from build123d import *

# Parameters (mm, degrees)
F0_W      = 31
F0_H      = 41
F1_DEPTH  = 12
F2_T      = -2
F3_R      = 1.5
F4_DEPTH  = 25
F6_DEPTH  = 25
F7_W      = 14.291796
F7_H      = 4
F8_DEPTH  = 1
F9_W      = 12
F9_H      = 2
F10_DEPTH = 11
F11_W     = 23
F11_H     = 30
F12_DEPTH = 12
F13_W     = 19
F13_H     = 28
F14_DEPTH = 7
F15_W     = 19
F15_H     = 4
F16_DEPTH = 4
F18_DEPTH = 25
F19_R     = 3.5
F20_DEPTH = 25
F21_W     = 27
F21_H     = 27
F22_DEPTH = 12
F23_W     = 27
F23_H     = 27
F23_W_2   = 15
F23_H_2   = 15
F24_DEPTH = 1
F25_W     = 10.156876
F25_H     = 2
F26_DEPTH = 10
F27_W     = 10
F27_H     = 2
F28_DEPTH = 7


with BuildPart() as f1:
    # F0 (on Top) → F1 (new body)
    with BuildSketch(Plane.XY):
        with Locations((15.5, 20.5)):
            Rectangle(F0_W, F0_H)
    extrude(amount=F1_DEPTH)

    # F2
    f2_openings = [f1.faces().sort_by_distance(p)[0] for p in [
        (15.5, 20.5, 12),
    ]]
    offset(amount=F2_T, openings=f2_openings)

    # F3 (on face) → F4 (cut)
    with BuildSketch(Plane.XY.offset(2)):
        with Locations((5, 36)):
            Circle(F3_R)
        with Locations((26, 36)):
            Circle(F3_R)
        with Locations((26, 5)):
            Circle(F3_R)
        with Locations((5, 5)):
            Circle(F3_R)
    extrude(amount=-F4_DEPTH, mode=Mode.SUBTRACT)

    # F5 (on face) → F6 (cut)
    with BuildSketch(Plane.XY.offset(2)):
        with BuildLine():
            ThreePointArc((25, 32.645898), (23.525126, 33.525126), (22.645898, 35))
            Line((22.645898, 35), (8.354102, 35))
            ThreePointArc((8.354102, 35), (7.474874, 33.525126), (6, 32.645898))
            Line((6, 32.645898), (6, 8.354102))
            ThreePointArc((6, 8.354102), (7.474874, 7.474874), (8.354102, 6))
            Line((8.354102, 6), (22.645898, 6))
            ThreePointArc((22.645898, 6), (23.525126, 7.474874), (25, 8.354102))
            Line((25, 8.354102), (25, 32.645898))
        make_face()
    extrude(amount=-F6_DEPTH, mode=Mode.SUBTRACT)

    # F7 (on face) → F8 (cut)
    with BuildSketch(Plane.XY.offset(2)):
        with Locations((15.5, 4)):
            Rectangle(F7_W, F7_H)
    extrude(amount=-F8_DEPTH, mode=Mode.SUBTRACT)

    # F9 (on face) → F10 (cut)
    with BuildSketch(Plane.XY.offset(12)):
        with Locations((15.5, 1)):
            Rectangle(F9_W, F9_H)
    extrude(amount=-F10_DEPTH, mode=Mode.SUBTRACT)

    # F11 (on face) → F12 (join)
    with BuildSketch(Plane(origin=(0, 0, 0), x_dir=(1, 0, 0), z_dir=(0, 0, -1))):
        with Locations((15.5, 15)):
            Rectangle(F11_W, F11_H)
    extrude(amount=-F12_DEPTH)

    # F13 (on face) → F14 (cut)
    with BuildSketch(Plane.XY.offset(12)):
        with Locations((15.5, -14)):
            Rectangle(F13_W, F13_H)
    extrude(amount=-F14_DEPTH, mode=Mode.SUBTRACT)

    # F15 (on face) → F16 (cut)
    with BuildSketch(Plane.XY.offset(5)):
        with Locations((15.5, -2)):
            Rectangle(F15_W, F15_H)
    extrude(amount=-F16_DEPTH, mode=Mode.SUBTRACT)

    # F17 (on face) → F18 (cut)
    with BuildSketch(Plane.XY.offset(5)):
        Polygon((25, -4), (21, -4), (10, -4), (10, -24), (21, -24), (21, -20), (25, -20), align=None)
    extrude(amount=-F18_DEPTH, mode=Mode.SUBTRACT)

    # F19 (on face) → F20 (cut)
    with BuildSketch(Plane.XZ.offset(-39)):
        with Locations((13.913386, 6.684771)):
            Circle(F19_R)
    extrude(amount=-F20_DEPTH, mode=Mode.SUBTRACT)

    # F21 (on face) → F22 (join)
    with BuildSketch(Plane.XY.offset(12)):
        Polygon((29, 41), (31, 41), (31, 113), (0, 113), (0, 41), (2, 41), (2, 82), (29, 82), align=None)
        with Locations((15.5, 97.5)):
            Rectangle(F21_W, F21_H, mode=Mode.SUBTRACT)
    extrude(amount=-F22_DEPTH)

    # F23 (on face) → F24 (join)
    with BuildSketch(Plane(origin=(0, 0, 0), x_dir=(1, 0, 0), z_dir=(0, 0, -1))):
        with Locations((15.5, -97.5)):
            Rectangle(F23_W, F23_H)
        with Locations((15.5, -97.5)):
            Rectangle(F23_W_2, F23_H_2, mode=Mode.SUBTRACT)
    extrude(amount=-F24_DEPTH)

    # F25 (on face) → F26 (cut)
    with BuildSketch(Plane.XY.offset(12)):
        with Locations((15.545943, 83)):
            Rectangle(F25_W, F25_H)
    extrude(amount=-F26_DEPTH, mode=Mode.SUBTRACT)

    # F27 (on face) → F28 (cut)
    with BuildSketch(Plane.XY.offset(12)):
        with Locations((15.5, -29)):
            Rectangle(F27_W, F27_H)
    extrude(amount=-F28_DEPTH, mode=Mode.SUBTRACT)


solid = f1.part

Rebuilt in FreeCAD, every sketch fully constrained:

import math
import FreeCAD as App
import Part
import Sketcher

V = App.Vector


def faces_at(feature, points):
    """Names of the faces that lie closest to the given points."""
    faces = feature.Shape.Faces
    near = lambda p: min(range(len(faces)), key=lambda i: faces[i].distToShape(Part.Vertex(*p))[0])
    return sorted({f"Face{near(p) + 1}" for p in points})


def add_polygon(sketch, points):
    """Adds a closed chain of lines whose ends are joined by coincident constraints."""
    first, n = sketch.GeometryCount, len(points)
    for a, b in zip(points, points[1:] + points[:1]):
        sketch.addGeometry(Part.LineSegment(App.Vector(*a, 0), App.Vector(*b, 0)), False)
    for i in range(n):
        sketch.addConstraint(Sketcher.Constraint("Coincident", first + i, 2, first + (i + 1) % n, 1))

doc = App.newDocument("Part")
body = doc.addObject("PartDesign::Body", "Body")

# Sketch on XY plane
sketch1 = body.newObject("Sketcher::SketchObject", "Sketch")
sketch1.AttachmentSupport = (doc.getObject("XY_Plane"), [""])
sketch1.MapMode = "FlatFace"
add_polygon(sketch1, [(0, 41), (0, 0), (31, 0), (31, 41)])  # lines 0-3
sketch1.addConstraint([
    Sketcher.Constraint("Vertical", 0),
    Sketcher.Constraint("Horizontal", 1),
    Sketcher.Constraint("Vertical", 2),
    Sketcher.Constraint("Horizontal", 3),
    Sketcher.Constraint("Coincident", 0, 2, -1, 1),
    Sketcher.Constraint("DistanceX", 1, 1, 1, 2, 31.0),
    Sketcher.Constraint("DistanceY", 0, 2, 0, 1, 41.0),
])
pad1 = body.newObject("PartDesign::Pad", "Pad")
pad1.Profile = sketch1
pad1.Length = 12
doc.recompute()

thickness = body.newObject("PartDesign::Thickness", "Thickness")
thickness.Base = (pad1, faces_at(pad1, [(15.5, 20.5, 12)]))
thickness.Value = 2
thickness.Reversed = True
thickness.Join = "Arc"

# Sketch on XY plane
sketch2 = body.newObject("Sketcher::SketchObject", "Sketch001")
sketch2.AttachmentSupport = (doc.getObject("XY_Plane"), [""])
sketch2.MapMode = "FlatFace"
sketch2.AttachmentOffset = App.Placement(V(0, 0, 2), App.Rotation())
sketch2.addGeometry([
    Part.Circle(V(5, 36, 0), V(0, 0, 1), 1.5),
    Part.Circle(V(26, 36, 0), V(0, 0, 1), 1.5),
    Part.Circle(V(26, 5, 0), V(0, 0, 1), 1.5),
    Part.Circle(V(5, 5, 0), V(0, 0, 1), 1.5),
], False)
sketch2.addConstraint([
    Sketcher.Constraint("Equal", 0, 1),
    Sketcher.Constraint("Equal", 1, 2),
    Sketcher.Constraint("Equal", 2, 3),
    Sketcher.Constraint("Horizontal", 0, 3, 1, 3),
    Sketcher.Constraint("Horizontal", 2, 3, 3, 3),
    Sketcher.Constraint("Vertical", 1, 3, 2, 3),
    Sketcher.Constraint("Vertical", 0, 3, 3, 3),
    Sketcher.Constraint("Diameter", 0, 3.0),
    Sketcher.Constraint("DistanceX", -1, 1, 0, 3, 5.0),
    Sketcher.Constraint("DistanceY", -1, 1, 0, 3, 36.0),
    Sketcher.Constraint("DistanceX", -1, 1, 1, 3, 26.0),
    Sketcher.Constraint("DistanceY", -1, 1, 2, 3, 5.0),
])
pocket1 = body.newObject("PartDesign::Pocket", "Pocket")
pocket1.Profile = sketch2
pocket1.Length = 25

# Sketch on XY plane
sketch3 = body.newObject("Sketcher::SketchObject", "Sketch002")
sketch3.AttachmentSupport = (doc.getObject("XY_Plane"), [""])
sketch3.MapMode = "FlatFace"
sketch3.AttachmentOffset = App.Placement(V(0, 0, 2), App.Rotation())
sketch3.addGeometry([
    Part.ArcOfCircle(Part.Circle(V(25.999998, 35.999998, 0), V(0, 0, 1), 3.499998), math.radians(-163.398473), math.radians(-106.601527)),  # 0
    Part.LineSegment(V(22.645898, 35, 0), V(8.354102, 35, 0)),  # 1
    Part.ArcOfCircle(Part.Circle(V(5.000002, 35.999998, 0), V(0, 0, 1), 3.499998), math.radians(-73.398473), math.radians(-16.601527)),  # 2
    Part.LineSegment(V(6, 32.645898, 0), V(6, 8.354102, 0)),  # 3
    Part.ArcOfCircle(Part.Circle(V(5.000002, 5.000002, 0), V(0, 0, 1), 3.499998), math.radians(16.601527), math.radians(73.398473)),  # 4
    Part.LineSegment(V(8.354102, 6, 0), V(22.645898, 6, 0)),  # 5
    Part.ArcOfCircle(Part.Circle(V(25.999998, 5.000002, 0), V(0, 0, 1), 3.499998), math.radians(106.601527), math.radians(163.398473)),  # 6
    Part.LineSegment(V(25, 8.354102, 0), V(25, 32.645898, 0)),  # 7
], False)
sketch3.addConstraint([
    Sketcher.Constraint("Coincident", 0, 1, 1, 1),
    Sketcher.Constraint("Coincident", 1, 2, 2, 2),
    Sketcher.Constraint("Coincident", 2, 1, 3, 1),
    Sketcher.Constraint("Coincident", 3, 2, 4, 2),
    Sketcher.Constraint("Coincident", 4, 1, 5, 1),
    Sketcher.Constraint("Coincident", 5, 2, 6, 2),
    Sketcher.Constraint("Coincident", 6, 1, 7, 1),
    Sketcher.Constraint("Coincident", 7, 2, 0, 2),
    Sketcher.Constraint("Horizontal", 1),
    Sketcher.Constraint("Vertical", 3),
    Sketcher.Constraint("Horizontal", 5),
    Sketcher.Constraint("Vertical", 7),
    Sketcher.Constraint("Equal", 0, 2),
    Sketcher.Constraint("Equal", 2, 4),
    Sketcher.Constraint("Equal", 4, 6),
    Sketcher.Constraint("Horizontal", 0, 3, 2, 3),
    Sketcher.Constraint("Horizontal", 4, 3, 6, 3),
    Sketcher.Constraint("Horizontal", 3, 2, 6, 1),
    Sketcher.Constraint("Horizontal", 2, 1, 7, 2),
    Sketcher.Constraint("Vertical", 2, 3, 4, 3),
    Sketcher.Constraint("Vertical", 1, 2, 4, 1),
    Sketcher.Constraint("DistanceY", -1, 1, 0, 1, 35.0),
    Sketcher.Constraint("DistanceX", -1, 1, 2, 1, 6.0),
    Sketcher.Constraint("DistanceY", -1, 1, 4, 1, 6.0),
    Sketcher.Constraint("DistanceX", -1, 1, 6, 1, 25.0),
    Sketcher.Constraint("Radius", 0, 3.499998),
    Sketcher.Constraint("DistanceX", -1, 1, 1, 2, 8.354102),
    Sketcher.Constraint("DistanceY", -1, 1, 3, 2, 8.354102),
])
pocket2 = body.newObject("PartDesign::Pocket", "Pocket001")
pocket2.Profile = sketch3
pocket2.Length = 25

# Sketch on XY plane
sketch4 = body.newObject("Sketcher::SketchObject", "Sketch003")
sketch4.AttachmentSupport = (doc.getObject("XY_Plane"), [""])
sketch4.MapMode = "FlatFace"
sketch4.AttachmentOffset = App.Placement(V(0, 0, 2), App.Rotation())
add_polygon(sketch4, [(8.354102, 6), (8.354102, 2), (22.645898, 2), (22.645898, 6)])  # lines 0-3
sketch4.addConstraint([
    Sketcher.Constraint("Vertical", 0),
    Sketcher.Constraint("Horizontal", 1),
    Sketcher.Constraint("Vertical", 2),
    Sketcher.Constraint("Horizontal", 3),
    Sketcher.Constraint("DistanceY", 0, 2, 0, 1, 4.0),
    Sketcher.Constraint("DistanceY", -1, 1, 0, 2, 2.0),
    Sketcher.Constraint("DistanceX", -1, 1, 0, 2, 8.354102),
    Sketcher.Constraint("DistanceX", 1, 1, 1, 2, 14.291796),
])
pocket3 = body.newObject("PartDesign::Pocket", "Pocket002")
pocket3.Profile = sketch4
pocket3.Length = 1

# Sketch on XY plane
sketch5 = body.newObject("Sketcher::SketchObject", "Sketch004")
sketch5.AttachmentSupport = (doc.getObject("XY_Plane"), [""])
sketch5.MapMode = "FlatFace"
sketch5.AttachmentOffset = App.Placement(V(0, 0, 12), App.Rotation())
add_polygon(sketch5, [(9.5, 2), (9.5, 0), (21.5, 0), (21.5, 2)])  # lines 0-3
sketch5.addConstraint([
    Sketcher.Constraint("Vertical", 0),
    Sketcher.Constraint("Horizontal", 1),
    Sketcher.Constraint("Vertical", 2),
    Sketcher.Constraint("Horizontal", 3),
    Sketcher.Constraint("PointOnObject", 0, 2, -1),
    Sketcher.Constraint("DistanceX", 1, 1, 1, 2, 12.0),
    Sketcher.Constraint("DistanceY", 0, 2, 0, 1, 2.0),
    Sketcher.Constraint("DistanceX", -1, 1, 0, 2, 9.5),
])
pocket4 = body.newObject("PartDesign::Pocket", "Pocket003")
pocket4.Profile = sketch5
pocket4.Length = 11

# Sketch on XY plane
sketch6 = body.newObject("Sketcher::SketchObject", "Sketch005")
sketch6.AttachmentSupport = (doc.getObject("XY_Plane"), [""])
sketch6.MapMode = "FlatFace"
add_polygon(sketch6, [(4, -30), (4, 0), (27, 0), (27, -30)])  # lines 0-3
sketch6.addConstraint([
    Sketcher.Constraint("Vertical", 0),
    Sketcher.Constraint("Horizontal", 1),
    Sketcher.Constraint("Vertical", 2),
    Sketcher.Constraint("Horizontal", 3),
    Sketcher.Constraint("PointOnObject", 0, 2, -1),
    Sketcher.Constraint("DistanceX", 1, 1, 1, 2, 23.0),
    Sketcher.Constraint("DistanceY", 0, 1, 0, 2, 30.0),
    Sketcher.Constraint("DistanceX", -1, 1, 0, 2, 4.0),
])
pad2 = body.newObject("PartDesign::Pad", "Pad001")
pad2.Profile = sketch6
pad2.Length = 12

# Sketch on XY plane
sketch7 = body.newObject("Sketcher::SketchObject", "Sketch006")
sketch7.AttachmentSupport = (doc.getObject("XY_Plane"), [""])
sketch7.MapMode = "FlatFace"
sketch7.AttachmentOffset = App.Placement(V(0, 0, 12), App.Rotation())
add_polygon(sketch7, [(6, 0), (6, -28), (25, -28), (25, 0)])  # lines 0-3
sketch7.addConstraint([
    Sketcher.Constraint("Vertical", 0),
    Sketcher.Constraint("Horizontal", 1),
    Sketcher.Constraint("Vertical", 2),
    Sketcher.Constraint("Horizontal", 3),
    Sketcher.Constraint("PointOnObject", 2, 2, -1),
    Sketcher.Constraint("DistanceX", 1, 1, 1, 2, 19.0),
    Sketcher.Constraint("DistanceY", 0, 2, 0, 1, 28.0),
    Sketcher.Constraint("DistanceX", -1, 1, 0, 2, 6.0),
])
pocket5 = body.newObject("PartDesign::Pocket", "Pocket004")
pocket5.Profile = sketch7
pocket5.Length = 7

# Sketch on XY plane
sketch8 = body.newObject("Sketcher::SketchObject", "Sketch007")
sketch8.AttachmentSupport = (doc.getObject("XY_Plane"), [""])
sketch8.MapMode = "FlatFace"
sketch8.AttachmentOffset = App.Placement(V(0, 0, 5), App.Rotation())
add_polygon(sketch8, [(6, 0), (6, -4), (25, -4), (25, 0)])  # lines 0-3
sketch8.addConstraint([
    Sketcher.Constraint("Vertical", 0),
    Sketcher.Constraint("Horizontal", 1),
    Sketcher.Constraint("Vertical", 2),
    Sketcher.Constraint("Horizontal", 3),
    Sketcher.Constraint("PointOnObject", 2, 2, -1),
    Sketcher.Constraint("DistanceX", 1, 1, 1, 2, 19.0),
    Sketcher.Constraint("DistanceY", 0, 2, 0, 1, 4.0),
    Sketcher.Constraint("DistanceX", -1, 1, 0, 2, 6.0),
])
pocket6 = body.newObject("PartDesign::Pocket", "Pocket005")
pocket6.Profile = sketch8
pocket6.Length = 4

# Sketch on XY plane
sketch9 = body.newObject("Sketcher::SketchObject", "Sketch008")
sketch9.AttachmentSupport = (doc.getObject("XY_Plane"), [""])
sketch9.MapMode = "FlatFace"
sketch9.AttachmentOffset = App.Placement(V(0, 0, 5), App.Rotation())
add_polygon(sketch9, [(25, -4), (10, -4), (10, -24), (21, -24), (21, -20), (25, -20)])  # lines 0-5
sketch9.addConstraint([
    Sketcher.Constraint("Horizontal", 0),
    Sketcher.Constraint("Vertical", 1),
    Sketcher.Constraint("Horizontal", 2),
    Sketcher.Constraint("Vertical", 3),
    Sketcher.Constraint("Horizontal", 4),
    Sketcher.Constraint("Vertical", 5),
    Sketcher.Constraint("Equal", 4, 3),
    Sketcher.Constraint("DistanceX", 0, 2, 0, 1, 15.0),
    Sketcher.Constraint("DistanceX", 2, 1, 2, 2, 11.0),
    Sketcher.Constraint("DistanceY", 1, 2, 1, 1, 20.0),
    Sketcher.Constraint("DistanceX", -1, 1, 0, 2, 10.0),
    Sketcher.Constraint("DistanceY", 0, 2, -1, 1, 4.0),
])
pocket7 = body.newObject("PartDesign::Pocket", "Pocket006")
pocket7.Profile = sketch9
pocket7.Length = 25

# Sketch on XZ plane
sketch10 = body.newObject("Sketcher::SketchObject", "Sketch009")
sketch10.AttachmentSupport = (doc.getObject("XZ_Plane"), [""])
sketch10.MapMode = "FlatFace"
sketch10.AttachmentOffset = App.Placement(V(0, 0, -39), App.Rotation())
sketch10.addGeometry(Part.Circle(V(13.913386, 6.684771, 0), V(0, 0, 1), 3.5), False)
sketch10.addConstraint([
    Sketcher.Constraint("Diameter", 0, 7.0),
    Sketcher.Constraint("DistanceY", -1, 1, 0, 3, 6.684771),
    Sketcher.Constraint("DistanceX", -1, 1, 0, 3, 13.913386),
])
pocket8 = body.newObject("PartDesign::Pocket", "Pocket007")
pocket8.Profile = sketch10
pocket8.Length = 25

# Sketch on XY plane
sketch11 = body.newObject("Sketcher::SketchObject", "Sketch010")
sketch11.AttachmentSupport = (doc.getObject("XY_Plane"), [""])
sketch11.MapMode = "FlatFace"
sketch11.AttachmentOffset = App.Placement(V(0, 0, 12), App.Rotation())
add_polygon(sketch11, [(29, 41), (31, 41), (31, 113), (0, 113), (0, 41), (2, 41), (2, 82), (29, 82)])  # lines 0-7
add_polygon(sketch11, [(29, 84), (2, 84), (2, 111), (29, 111)])  # lines 8-11
sketch11.addConstraint([
    Sketcher.Constraint("Horizontal", 0),
    Sketcher.Constraint("Vertical", 1),
    Sketcher.Constraint("Horizontal", 2),
    Sketcher.Constraint("Vertical", 3),
    Sketcher.Constraint("Horizontal", 4),
    Sketcher.Constraint("Vertical", 5),
    Sketcher.Constraint("Horizontal", 6),
    Sketcher.Constraint("Vertical", 7),
    Sketcher.Constraint("Horizontal", 8),
    Sketcher.Constraint("Vertical", 9),
    Sketcher.Constraint("Horizontal", 10),
    Sketcher.Constraint("Vertical", 11),
    Sketcher.Constraint("PointOnObject", 2, 2, -2),
    Sketcher.Constraint("Horizontal", 0, 2, 3, 2),
    Sketcher.Constraint("Vertical", 5, 2, 8, 2),
    Sketcher.Constraint("Vertical", 7, 2, 10, 2),
    Sketcher.Constraint("Equal", 0, 4),
    Sketcher.Constraint("Equal", 10, 9),
    Sketcher.Constraint("DistanceX", 0, 1, 0, 2, 2.0),
    Sketcher.Constraint("DistanceX", 2, 2, 2, 1, 31.0),
    Sketcher.Constraint("DistanceY", 1, 1, 1, 2, 72.0),
    Sketcher.Constraint("DistanceY", 5, 1, 5, 2, 41.0),
    Sketcher.Constraint("DistanceY", -1, 1, 0, 2, 41.0),
    Sketcher.Constraint("DistanceY", -1, 1, 8, 2, 84.0),
])
pad3 = body.newObject("PartDesign::Pad", "Pad002")
pad3.Profile = sketch11
pad3.Length = 12
pad3.Reversed = True

# Sketch on XY plane
sketch12 = body.newObject("Sketcher::SketchObject", "Sketch011")
sketch12.AttachmentSupport = (doc.getObject("XY_Plane"), [""])
sketch12.MapMode = "FlatFace"
add_polygon(sketch12, [(2, 84), (2, 111), (29, 111), (29, 84)])  # lines 0-3
add_polygon(sketch12, [(23, 105), (8, 105), (8, 90), (23, 90)])  # lines 4-7
sketch12.addConstraint([
    Sketcher.Constraint("Vertical", 0),
    Sketcher.Constraint("Horizontal", 1),
    Sketcher.Constraint("Vertical", 2),
    Sketcher.Constraint("Horizontal", 3),
    Sketcher.Constraint("Horizontal", 4),
    Sketcher.Constraint("Vertical", 5),
    Sketcher.Constraint("Horizontal", 6),
    Sketcher.Constraint("Vertical", 7),
    Sketcher.Constraint("Equal", 3, 0),
    Sketcher.Constraint("Equal", 6, 5),
    Sketcher.Constraint("DistanceX", 1, 1, 1, 2, 27.0),
    Sketcher.Constraint("DistanceX", 4, 2, 4, 1, 15.0),
    Sketcher.Constraint("DistanceX", -1, 1, 0, 2, 2.0),
    Sketcher.Constraint("DistanceY", -1, 1, 0, 2, 111.0),
    Sketcher.Constraint("DistanceX", -1, 1, 4, 2, 8.0),
    Sketcher.Constraint("DistanceY", -1, 1, 4, 2, 105.0),
])
pad4 = body.newObject("PartDesign::Pad", "Pad003")
pad4.Profile = sketch12
pad4.Length = 1

# Sketch on XY plane
sketch13 = body.newObject("Sketcher::SketchObject", "Sketch012")
sketch13.AttachmentSupport = (doc.getObject("XY_Plane"), [""])
sketch13.MapMode = "FlatFace"
sketch13.AttachmentOffset = App.Placement(V(0, 0, 12), App.Rotation())
add_polygon(sketch13, [(10.467505, 84), (10.467505, 82), (20.624381, 82), (20.624381, 84)])  # lines 0-3
sketch13.addConstraint([
    Sketcher.Constraint("Vertical", 0),
    Sketcher.Constraint("Horizontal", 1),
    Sketcher.Constraint("Vertical", 2),
    Sketcher.Constraint("Horizontal", 3),
    Sketcher.Constraint("DistanceY", 0, 2, 0, 1, 2.0),
    Sketcher.Constraint("DistanceY", -1, 1, 0, 2, 82.0),
    Sketcher.Constraint("DistanceX", 1, 1, 1, 2, 10.156876),
    Sketcher.Constraint("DistanceX", -1, 1, 1, 2, 20.624381),
])
pocket9 = body.newObject("PartDesign::Pocket", "Pocket008")
pocket9.Profile = sketch13
pocket9.Length = 10

# Sketch on XY plane
sketch14 = body.newObject("Sketcher::SketchObject", "Sketch013")
sketch14.AttachmentSupport = (doc.getObject("XY_Plane"), [""])
sketch14.MapMode = "FlatFace"
sketch14.AttachmentOffset = App.Placement(V(0, 0, 12), App.Rotation())
add_polygon(sketch14, [(10.5, -28), (10.5, -30), (20.5, -30), (20.5, -28)])  # lines 0-3
sketch14.addConstraint([
    Sketcher.Constraint("Vertical", 0),
    Sketcher.Constraint("Horizontal", 1),
    Sketcher.Constraint("Vertical", 2),
    Sketcher.Constraint("Horizontal", 3),
    Sketcher.Constraint("DistanceX", 1, 1, 1, 2, 10.0),
    Sketcher.Constraint("DistanceY", 0, 2, 0, 1, 2.0),
    Sketcher.Constraint("DistanceY", 0, 2, -1, 1, 30.0),
    Sketcher.Constraint("DistanceX", -1, 1, 0, 2, 10.5),
])
pocket10 = body.newObject("PartDesign::Pocket", "Pocket009")
pocket10.Profile = sketch14
pocket10.Length = 7

doc.recompute()
